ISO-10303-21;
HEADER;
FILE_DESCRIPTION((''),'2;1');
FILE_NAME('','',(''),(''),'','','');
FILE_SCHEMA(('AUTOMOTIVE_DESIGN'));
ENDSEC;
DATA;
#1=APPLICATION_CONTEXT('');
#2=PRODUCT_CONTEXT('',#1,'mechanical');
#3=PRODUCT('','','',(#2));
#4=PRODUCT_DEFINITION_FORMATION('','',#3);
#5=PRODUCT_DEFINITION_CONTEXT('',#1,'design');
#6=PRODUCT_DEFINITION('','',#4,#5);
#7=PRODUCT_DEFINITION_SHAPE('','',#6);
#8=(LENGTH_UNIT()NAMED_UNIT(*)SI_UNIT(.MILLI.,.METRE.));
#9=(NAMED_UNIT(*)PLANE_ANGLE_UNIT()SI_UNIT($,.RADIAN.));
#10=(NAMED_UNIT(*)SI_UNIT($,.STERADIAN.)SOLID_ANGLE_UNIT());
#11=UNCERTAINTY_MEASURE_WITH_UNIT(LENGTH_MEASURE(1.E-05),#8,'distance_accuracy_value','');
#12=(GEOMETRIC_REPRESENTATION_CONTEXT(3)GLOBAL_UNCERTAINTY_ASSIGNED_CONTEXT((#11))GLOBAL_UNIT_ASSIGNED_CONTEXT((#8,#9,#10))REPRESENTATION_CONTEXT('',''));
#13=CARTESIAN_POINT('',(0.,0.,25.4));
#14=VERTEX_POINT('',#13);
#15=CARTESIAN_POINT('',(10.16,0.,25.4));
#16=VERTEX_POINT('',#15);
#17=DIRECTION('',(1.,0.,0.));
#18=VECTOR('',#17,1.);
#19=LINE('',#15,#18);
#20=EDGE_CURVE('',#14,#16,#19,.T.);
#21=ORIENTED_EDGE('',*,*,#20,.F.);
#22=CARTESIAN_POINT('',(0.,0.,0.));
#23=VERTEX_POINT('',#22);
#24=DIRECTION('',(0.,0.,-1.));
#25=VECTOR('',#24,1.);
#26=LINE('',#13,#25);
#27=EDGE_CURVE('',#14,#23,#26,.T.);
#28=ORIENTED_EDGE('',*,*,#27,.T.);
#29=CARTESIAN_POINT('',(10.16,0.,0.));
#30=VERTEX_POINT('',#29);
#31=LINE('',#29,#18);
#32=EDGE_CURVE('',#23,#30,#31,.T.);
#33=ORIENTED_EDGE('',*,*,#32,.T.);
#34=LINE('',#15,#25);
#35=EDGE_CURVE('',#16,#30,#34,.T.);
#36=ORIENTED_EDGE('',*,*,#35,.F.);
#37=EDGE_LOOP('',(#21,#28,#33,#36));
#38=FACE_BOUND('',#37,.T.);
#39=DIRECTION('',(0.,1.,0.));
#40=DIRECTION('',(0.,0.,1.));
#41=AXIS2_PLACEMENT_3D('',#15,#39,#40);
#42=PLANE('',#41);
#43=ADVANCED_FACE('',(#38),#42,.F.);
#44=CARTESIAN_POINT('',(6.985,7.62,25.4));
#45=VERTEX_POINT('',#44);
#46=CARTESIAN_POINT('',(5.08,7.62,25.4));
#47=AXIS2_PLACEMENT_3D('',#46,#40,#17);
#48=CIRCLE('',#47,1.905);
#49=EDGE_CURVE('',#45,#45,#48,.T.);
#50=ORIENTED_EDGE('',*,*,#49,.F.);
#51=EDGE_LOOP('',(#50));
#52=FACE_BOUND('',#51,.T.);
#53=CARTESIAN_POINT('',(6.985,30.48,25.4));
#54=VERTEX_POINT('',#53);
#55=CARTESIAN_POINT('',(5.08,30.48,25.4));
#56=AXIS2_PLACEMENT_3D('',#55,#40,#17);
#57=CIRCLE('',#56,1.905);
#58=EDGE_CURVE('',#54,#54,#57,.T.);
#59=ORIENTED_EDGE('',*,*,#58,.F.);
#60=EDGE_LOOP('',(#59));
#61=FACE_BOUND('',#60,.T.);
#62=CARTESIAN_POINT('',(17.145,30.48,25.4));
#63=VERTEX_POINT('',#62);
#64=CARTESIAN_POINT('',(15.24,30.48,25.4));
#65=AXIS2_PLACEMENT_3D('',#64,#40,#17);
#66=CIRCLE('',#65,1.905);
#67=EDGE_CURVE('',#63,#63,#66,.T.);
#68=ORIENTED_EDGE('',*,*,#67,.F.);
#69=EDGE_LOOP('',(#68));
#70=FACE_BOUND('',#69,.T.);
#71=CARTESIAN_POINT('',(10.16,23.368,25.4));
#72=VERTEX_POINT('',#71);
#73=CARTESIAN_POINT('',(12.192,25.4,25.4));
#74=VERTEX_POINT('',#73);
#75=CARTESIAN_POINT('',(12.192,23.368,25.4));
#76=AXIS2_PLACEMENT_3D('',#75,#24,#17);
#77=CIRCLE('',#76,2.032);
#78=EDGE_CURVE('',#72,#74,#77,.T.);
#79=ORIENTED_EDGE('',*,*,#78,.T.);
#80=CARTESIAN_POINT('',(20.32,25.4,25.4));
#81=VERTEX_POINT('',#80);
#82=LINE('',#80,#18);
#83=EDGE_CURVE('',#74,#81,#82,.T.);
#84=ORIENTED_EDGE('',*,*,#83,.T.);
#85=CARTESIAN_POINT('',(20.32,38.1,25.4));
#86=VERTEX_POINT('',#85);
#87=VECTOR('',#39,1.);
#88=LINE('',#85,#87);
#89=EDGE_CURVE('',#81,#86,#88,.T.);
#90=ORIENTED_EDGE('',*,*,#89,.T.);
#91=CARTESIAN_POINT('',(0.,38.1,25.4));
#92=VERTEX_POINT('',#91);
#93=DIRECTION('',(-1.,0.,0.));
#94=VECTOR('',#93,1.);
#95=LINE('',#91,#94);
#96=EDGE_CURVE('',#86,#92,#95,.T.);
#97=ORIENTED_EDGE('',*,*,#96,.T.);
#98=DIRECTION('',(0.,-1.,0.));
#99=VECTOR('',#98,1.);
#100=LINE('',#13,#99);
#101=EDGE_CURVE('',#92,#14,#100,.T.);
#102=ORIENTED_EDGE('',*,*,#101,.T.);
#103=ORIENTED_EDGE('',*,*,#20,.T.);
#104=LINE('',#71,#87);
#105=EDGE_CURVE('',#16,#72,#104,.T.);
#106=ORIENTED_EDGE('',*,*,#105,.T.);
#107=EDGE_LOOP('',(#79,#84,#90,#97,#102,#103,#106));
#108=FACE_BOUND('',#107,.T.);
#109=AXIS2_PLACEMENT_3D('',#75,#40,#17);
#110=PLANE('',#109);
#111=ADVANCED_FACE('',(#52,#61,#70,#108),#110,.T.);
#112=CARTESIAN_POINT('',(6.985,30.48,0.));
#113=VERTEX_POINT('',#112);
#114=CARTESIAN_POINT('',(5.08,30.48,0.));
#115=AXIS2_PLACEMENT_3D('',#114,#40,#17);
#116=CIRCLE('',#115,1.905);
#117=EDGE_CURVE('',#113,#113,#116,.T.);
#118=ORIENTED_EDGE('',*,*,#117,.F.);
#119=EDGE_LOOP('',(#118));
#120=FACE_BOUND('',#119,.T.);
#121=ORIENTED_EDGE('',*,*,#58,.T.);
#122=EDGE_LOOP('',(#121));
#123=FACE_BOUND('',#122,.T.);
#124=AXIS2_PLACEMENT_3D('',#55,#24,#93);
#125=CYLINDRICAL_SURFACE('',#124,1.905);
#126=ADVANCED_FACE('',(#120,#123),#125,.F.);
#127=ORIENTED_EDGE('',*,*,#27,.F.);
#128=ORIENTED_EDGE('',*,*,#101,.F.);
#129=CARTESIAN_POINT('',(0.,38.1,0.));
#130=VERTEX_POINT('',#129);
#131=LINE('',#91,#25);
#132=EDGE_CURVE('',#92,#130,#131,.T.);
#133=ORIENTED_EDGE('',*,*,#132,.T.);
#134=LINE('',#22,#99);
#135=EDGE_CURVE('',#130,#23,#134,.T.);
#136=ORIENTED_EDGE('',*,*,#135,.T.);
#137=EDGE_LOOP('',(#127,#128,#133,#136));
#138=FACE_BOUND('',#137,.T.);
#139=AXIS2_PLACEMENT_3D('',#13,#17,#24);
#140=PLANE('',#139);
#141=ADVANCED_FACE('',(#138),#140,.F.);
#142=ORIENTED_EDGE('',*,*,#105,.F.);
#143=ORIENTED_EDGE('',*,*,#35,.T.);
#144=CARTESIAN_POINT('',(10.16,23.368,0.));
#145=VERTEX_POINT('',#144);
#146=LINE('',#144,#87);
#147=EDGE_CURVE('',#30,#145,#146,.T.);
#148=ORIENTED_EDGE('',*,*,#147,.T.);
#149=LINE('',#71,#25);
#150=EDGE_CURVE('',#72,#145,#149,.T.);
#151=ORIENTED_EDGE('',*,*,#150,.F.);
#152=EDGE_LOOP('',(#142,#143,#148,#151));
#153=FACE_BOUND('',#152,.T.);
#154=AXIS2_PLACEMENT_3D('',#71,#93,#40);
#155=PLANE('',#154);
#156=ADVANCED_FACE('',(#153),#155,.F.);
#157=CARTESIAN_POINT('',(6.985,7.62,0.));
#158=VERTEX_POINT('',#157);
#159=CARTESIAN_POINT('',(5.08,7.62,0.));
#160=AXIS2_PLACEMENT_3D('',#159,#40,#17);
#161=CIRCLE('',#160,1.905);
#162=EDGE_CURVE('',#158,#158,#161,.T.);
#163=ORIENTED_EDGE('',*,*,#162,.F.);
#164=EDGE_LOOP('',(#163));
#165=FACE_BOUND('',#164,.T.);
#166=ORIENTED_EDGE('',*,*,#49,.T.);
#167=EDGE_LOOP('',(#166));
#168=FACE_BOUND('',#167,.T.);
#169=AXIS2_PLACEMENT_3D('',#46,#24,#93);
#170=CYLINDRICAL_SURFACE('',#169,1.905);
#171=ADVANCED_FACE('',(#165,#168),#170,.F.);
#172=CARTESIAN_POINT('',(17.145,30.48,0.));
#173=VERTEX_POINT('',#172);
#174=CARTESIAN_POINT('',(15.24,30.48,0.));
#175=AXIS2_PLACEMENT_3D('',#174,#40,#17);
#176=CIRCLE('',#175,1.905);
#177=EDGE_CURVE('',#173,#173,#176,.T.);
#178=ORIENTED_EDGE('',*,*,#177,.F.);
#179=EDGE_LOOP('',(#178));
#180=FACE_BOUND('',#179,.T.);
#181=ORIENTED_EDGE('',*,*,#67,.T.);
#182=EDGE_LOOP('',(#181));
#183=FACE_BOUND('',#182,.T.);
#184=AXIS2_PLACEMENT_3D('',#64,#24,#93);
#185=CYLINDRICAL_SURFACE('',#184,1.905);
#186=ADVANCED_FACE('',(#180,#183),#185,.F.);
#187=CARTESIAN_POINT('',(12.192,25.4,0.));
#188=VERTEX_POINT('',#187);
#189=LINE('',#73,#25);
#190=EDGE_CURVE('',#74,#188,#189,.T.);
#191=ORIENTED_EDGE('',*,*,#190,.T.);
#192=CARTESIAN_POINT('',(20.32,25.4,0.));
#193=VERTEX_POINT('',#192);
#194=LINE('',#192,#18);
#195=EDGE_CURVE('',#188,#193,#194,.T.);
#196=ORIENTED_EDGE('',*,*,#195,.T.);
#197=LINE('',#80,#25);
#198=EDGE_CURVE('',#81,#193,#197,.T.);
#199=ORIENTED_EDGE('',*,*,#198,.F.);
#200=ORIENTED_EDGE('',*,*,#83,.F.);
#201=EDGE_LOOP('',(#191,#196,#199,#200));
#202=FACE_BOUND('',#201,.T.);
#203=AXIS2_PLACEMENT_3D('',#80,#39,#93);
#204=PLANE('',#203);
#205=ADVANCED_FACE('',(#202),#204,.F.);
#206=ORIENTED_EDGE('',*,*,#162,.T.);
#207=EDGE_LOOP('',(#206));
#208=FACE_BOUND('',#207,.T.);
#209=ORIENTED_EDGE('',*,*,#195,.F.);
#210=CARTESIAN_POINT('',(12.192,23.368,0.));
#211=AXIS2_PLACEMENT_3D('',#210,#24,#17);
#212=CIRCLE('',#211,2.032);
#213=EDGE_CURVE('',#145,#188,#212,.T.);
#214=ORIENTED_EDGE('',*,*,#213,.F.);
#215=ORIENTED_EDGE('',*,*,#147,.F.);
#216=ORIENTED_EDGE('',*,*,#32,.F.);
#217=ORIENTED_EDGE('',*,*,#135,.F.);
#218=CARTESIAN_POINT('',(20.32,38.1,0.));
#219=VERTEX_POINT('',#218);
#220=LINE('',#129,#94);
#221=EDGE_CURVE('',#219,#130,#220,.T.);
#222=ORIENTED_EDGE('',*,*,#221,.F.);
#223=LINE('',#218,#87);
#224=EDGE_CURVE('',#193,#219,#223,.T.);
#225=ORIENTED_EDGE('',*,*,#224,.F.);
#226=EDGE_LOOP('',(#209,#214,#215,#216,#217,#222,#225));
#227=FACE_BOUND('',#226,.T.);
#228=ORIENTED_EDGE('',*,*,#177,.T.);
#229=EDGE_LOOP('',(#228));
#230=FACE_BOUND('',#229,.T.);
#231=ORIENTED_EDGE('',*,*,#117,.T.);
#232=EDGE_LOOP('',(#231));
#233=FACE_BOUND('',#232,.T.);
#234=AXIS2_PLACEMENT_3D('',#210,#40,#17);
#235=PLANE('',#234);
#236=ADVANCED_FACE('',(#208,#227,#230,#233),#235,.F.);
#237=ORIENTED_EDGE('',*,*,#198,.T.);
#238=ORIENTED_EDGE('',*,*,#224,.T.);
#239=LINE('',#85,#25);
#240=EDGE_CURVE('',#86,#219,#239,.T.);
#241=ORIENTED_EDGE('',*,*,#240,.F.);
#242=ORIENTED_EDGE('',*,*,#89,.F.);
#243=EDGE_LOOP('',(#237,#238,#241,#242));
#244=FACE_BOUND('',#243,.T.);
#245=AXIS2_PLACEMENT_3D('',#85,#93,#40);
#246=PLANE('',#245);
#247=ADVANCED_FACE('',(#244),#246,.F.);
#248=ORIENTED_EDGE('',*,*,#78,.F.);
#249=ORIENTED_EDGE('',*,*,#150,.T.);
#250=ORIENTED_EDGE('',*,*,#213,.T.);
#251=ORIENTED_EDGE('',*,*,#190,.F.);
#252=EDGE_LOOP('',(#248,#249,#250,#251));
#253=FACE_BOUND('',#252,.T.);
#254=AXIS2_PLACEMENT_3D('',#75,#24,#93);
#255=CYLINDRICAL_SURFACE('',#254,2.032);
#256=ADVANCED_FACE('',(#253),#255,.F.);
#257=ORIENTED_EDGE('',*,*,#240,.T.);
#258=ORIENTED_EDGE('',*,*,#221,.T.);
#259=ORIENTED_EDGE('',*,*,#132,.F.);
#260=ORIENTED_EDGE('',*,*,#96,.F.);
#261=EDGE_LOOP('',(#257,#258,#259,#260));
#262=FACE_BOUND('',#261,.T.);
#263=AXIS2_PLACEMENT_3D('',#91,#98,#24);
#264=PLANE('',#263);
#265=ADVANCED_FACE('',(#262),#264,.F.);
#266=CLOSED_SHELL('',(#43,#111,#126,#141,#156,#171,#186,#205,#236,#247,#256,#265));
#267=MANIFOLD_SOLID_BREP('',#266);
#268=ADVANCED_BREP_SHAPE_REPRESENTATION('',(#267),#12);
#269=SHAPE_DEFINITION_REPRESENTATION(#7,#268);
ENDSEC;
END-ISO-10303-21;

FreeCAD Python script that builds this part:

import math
import FreeCAD as App
import Part
import Sketcher

V = App.Vector
Q = App.Units.Quantity

doc = App.newDocument("Part")
body = doc.addObject("PartDesign::Body", "Body")

# Sketch on XY plane
sketch1 = body.newObject("Sketcher::SketchObject", "Sketch")
sketch1.AttachmentSupport = (doc.getObject("XY_Plane"), [""])
sketch1.MapMode = "FlatFace"
sketch1.addGeometry([
    Part.LineSegment(V(0, 38.1, 0), V(0, 0, 0)),  # 0
    Part.LineSegment(V(0, 0, 0), V(10.2, 0, 0)),  # 1
    Part.LineSegment(V(10.2, 0, 0), V(10.2, 23.4, 0)),  # 2
    Part.ArcOfCircle(Part.Circle(V(12.2, 23.4, 0), V(0, 0, 1), 2), math.radians(90), math.radians(180)),  # 3
    Part.LineSegment(V(12.2, 25.4, 0), V(20.3, 25.4, 0)),  # 4
    Part.LineSegment(V(20.3, 25.4, 0), V(20.3, 38.1, 0)),  # 5
    Part.LineSegment(V(20.3, 38.1, 0), V(0, 38.1, 0)),  # 6
    Part.Circle(V(5.1, 7.6, 0), V(0, 0, 1), 1.9),  # 7
    Part.Circle(V(15.2, 30.5, 0), V(0, 0, 1), 1.9),  # 8
    Part.Circle(V(5.1, 30.5, 0), V(0, 0, 1), 1.9),  # 9
], False)
sketch1.addConstraint([
    Sketcher.Constraint("Coincident", 0, 2, 1, 1),
    Sketcher.Constraint("Coincident", 1, 2, 2, 1),
    Sketcher.Constraint("Tangent", 2, 2, 3, 2),
    Sketcher.Constraint("Tangent", 3, 1, 4, 1),
    Sketcher.Constraint("Coincident", 4, 2, 5, 1),
    Sketcher.Constraint("Coincident", 5, 2, 6, 1),
    Sketcher.Constraint("Coincident", 6, 2, 0, 1),
    Sketcher.Constraint("Vertical", 0),
    Sketcher.Constraint("Horizontal", 1),
    Sketcher.Constraint("Vertical", 2),
    Sketcher.Constraint("Horizontal", 4),
    Sketcher.Constraint("Vertical", 5),
    Sketcher.Constraint("Horizontal", 6),
    Sketcher.Constraint("Coincident", 0, 2, -1, 1),
    Sketcher.Constraint("Equal", 7, 8),
    Sketcher.Constraint("Equal", 8, 9),
    Sketcher.Constraint("Horizontal", 8, 3, 9, 3),
    Sketcher.Constraint("Vertical", 7, 3, 9, 3),
    Sketcher.Constraint("Diameter", 7, Q("0.15 in")),
    Sketcher.Constraint("Radius", 3, Q("0.08 in")),
    Sketcher.Constraint("DistanceX", 1, 1, 1, 2, Q("0.4 in")),
    Sketcher.Constraint("DistanceX", 6, 2, 6, 1, Q("0.8 in")),
    Sketcher.Constraint("DistanceY", 0, 2, 0, 1, Q("1.5 in")),
    Sketcher.Constraint("DistanceY", 5, 1, 5, 2, Q("0.5 in")),
    Sketcher.Constraint("DistanceX", -1, 1, 7, 3, Q("0.2 in")),
    Sketcher.Constraint("DistanceY", -1, 1, 7, 3, Q("0.3 in")),
    Sketcher.Constraint("DistanceX", -1, 1, 8, 3, Q("0.6 in")),
    Sketcher.Constraint("DistanceY", -1, 1, 8, 3, Q("1.2 in")),
])
pad1 = body.newObject("PartDesign::Pad", "Pad")
pad1.Profile = sketch1
pad1.Length = Q("1 in")

doc.recompute()
